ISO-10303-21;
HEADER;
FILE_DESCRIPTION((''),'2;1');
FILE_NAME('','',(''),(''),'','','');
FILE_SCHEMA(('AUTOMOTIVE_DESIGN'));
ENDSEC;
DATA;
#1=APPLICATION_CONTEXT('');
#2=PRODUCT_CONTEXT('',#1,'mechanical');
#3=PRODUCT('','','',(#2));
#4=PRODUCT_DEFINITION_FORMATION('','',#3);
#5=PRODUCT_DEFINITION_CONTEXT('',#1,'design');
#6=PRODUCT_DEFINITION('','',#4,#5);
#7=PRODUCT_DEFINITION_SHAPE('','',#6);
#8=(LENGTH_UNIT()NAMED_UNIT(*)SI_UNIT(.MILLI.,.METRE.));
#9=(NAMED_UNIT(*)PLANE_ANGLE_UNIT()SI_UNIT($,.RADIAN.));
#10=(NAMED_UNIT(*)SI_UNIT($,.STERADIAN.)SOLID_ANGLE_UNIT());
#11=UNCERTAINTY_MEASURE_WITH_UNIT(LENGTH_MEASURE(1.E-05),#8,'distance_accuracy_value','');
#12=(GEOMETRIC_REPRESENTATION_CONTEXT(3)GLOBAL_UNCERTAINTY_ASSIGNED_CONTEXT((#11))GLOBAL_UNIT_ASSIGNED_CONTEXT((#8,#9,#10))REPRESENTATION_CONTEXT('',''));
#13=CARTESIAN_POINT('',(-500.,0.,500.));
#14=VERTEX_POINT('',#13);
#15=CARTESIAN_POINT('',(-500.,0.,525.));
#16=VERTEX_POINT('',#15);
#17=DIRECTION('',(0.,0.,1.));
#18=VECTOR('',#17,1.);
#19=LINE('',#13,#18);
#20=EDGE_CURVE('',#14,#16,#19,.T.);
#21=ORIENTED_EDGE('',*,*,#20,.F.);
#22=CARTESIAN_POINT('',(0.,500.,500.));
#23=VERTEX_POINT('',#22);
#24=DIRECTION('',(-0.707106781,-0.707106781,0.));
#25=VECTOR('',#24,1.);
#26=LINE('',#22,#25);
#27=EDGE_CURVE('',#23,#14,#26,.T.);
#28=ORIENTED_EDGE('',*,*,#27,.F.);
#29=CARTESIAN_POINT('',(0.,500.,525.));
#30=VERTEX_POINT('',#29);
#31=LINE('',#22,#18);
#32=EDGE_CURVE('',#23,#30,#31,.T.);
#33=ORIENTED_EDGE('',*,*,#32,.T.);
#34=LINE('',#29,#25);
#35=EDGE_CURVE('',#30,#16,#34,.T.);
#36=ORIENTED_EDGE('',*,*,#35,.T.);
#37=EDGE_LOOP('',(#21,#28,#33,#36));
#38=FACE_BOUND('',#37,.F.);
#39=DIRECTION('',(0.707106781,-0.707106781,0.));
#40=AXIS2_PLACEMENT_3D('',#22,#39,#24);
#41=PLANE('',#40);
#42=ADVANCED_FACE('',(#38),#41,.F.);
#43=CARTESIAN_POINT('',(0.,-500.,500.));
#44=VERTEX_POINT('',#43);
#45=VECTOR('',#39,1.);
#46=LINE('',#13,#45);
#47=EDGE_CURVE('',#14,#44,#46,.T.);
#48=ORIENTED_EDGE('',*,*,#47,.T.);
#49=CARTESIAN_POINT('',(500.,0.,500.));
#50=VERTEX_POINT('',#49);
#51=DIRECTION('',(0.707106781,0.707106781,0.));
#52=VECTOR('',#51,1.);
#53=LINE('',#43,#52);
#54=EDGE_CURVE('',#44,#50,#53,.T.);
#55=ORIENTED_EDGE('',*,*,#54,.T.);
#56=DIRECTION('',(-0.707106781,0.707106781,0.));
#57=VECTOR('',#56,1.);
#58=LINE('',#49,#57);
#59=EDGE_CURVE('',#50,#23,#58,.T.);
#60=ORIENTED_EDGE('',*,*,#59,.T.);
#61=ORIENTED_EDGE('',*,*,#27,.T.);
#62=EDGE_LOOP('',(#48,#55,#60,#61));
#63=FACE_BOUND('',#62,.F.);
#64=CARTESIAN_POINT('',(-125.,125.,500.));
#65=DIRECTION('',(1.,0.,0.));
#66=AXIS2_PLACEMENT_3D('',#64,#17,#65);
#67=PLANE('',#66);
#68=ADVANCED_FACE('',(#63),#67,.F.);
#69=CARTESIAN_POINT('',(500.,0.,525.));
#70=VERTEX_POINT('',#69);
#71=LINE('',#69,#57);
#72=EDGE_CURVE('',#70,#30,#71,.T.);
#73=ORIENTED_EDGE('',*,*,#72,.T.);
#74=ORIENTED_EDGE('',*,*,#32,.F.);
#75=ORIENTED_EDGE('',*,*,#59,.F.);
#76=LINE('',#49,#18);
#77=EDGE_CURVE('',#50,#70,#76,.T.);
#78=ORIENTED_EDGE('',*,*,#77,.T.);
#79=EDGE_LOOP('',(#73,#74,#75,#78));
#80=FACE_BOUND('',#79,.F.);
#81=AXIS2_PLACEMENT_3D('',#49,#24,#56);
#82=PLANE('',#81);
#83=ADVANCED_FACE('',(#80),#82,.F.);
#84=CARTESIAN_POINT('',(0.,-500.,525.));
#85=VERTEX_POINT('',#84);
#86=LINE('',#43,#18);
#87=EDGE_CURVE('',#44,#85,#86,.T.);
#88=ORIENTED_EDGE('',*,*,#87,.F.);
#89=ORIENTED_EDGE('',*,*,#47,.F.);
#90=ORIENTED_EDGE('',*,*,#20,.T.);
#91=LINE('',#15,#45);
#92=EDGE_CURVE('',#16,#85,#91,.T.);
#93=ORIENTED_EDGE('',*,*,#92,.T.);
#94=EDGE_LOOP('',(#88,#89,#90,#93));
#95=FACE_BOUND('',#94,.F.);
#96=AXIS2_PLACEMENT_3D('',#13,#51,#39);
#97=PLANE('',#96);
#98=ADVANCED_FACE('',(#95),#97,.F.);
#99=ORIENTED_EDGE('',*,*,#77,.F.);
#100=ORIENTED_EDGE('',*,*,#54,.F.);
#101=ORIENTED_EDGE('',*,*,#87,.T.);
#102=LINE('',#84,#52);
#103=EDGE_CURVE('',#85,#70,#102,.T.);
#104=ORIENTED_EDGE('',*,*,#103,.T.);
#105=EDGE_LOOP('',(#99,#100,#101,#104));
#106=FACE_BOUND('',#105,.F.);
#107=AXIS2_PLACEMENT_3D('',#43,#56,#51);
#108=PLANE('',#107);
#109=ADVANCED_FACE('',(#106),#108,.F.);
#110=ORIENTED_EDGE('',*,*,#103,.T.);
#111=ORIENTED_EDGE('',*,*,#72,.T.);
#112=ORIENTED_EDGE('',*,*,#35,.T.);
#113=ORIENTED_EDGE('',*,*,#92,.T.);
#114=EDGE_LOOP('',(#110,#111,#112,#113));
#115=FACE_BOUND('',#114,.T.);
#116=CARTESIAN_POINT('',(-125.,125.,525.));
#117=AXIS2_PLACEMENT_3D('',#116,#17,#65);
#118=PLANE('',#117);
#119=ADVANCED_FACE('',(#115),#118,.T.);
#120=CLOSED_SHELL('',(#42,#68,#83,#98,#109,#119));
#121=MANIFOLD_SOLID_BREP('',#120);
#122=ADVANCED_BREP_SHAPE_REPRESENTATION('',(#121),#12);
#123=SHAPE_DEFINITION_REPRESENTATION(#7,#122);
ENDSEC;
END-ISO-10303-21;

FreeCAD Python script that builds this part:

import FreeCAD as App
import Part
import Sketcher
from FreeCAD import Vector


def add_polygon(sketch, points):
    """Adds a closed chain of lines whose ends are joined by coincident constraints."""
    first, n = sketch.GeometryCount, len(points)
    for a, b in zip(points, points[1:] + points[:1]):
        sketch.addGeometry(Part.LineSegment(App.Vector(*a, 0), App.Vector(*b, 0)), False)
    for i in range(n):
        sketch.addConstraint(Sketcher.Constraint("Coincident", first + i, 2, first + (i + 1) % n, 1))

doc = App.newDocument("Part")
body = doc.addObject("PartDesign::Body", "Body")

sketch1 = body.newObject("Sketcher::SketchObject", "Sketch")
sketch1.AttachmentSupport = (doc.getObject("XY_Plane"), [""])
sketch1.MapMode = "FlatFace"
sketch1.AttachmentOffset = App.Placement(Vector(0, 0, 500), App.Rotation())
add_polygon(sketch1, [(-500, 0), (0, -500), (500, 0), (0, 500)])
sketch1.addConstraint([
    Sketcher.Constraint("Symmetric", 0, 2, 2, 2, -1, 1),
    Sketcher.Constraint("Symmetric", 1, 2, 3, 2, -1, 1),
    Sketcher.Constraint("PointOnObject", 0, 2, -2),
    Sketcher.Constraint("PointOnObject", 1, 2, -1),
    Sketcher.Constraint("Perpendicular", 0, 1),
    Sketcher.Constraint("DistanceY", 0, 2, -1, 1, 500.0),
])
pad1 = body.newObject("PartDesign::Pad", "Pad")
pad1.Profile = sketch1
pad1.Length = 25

doc.recompute()
